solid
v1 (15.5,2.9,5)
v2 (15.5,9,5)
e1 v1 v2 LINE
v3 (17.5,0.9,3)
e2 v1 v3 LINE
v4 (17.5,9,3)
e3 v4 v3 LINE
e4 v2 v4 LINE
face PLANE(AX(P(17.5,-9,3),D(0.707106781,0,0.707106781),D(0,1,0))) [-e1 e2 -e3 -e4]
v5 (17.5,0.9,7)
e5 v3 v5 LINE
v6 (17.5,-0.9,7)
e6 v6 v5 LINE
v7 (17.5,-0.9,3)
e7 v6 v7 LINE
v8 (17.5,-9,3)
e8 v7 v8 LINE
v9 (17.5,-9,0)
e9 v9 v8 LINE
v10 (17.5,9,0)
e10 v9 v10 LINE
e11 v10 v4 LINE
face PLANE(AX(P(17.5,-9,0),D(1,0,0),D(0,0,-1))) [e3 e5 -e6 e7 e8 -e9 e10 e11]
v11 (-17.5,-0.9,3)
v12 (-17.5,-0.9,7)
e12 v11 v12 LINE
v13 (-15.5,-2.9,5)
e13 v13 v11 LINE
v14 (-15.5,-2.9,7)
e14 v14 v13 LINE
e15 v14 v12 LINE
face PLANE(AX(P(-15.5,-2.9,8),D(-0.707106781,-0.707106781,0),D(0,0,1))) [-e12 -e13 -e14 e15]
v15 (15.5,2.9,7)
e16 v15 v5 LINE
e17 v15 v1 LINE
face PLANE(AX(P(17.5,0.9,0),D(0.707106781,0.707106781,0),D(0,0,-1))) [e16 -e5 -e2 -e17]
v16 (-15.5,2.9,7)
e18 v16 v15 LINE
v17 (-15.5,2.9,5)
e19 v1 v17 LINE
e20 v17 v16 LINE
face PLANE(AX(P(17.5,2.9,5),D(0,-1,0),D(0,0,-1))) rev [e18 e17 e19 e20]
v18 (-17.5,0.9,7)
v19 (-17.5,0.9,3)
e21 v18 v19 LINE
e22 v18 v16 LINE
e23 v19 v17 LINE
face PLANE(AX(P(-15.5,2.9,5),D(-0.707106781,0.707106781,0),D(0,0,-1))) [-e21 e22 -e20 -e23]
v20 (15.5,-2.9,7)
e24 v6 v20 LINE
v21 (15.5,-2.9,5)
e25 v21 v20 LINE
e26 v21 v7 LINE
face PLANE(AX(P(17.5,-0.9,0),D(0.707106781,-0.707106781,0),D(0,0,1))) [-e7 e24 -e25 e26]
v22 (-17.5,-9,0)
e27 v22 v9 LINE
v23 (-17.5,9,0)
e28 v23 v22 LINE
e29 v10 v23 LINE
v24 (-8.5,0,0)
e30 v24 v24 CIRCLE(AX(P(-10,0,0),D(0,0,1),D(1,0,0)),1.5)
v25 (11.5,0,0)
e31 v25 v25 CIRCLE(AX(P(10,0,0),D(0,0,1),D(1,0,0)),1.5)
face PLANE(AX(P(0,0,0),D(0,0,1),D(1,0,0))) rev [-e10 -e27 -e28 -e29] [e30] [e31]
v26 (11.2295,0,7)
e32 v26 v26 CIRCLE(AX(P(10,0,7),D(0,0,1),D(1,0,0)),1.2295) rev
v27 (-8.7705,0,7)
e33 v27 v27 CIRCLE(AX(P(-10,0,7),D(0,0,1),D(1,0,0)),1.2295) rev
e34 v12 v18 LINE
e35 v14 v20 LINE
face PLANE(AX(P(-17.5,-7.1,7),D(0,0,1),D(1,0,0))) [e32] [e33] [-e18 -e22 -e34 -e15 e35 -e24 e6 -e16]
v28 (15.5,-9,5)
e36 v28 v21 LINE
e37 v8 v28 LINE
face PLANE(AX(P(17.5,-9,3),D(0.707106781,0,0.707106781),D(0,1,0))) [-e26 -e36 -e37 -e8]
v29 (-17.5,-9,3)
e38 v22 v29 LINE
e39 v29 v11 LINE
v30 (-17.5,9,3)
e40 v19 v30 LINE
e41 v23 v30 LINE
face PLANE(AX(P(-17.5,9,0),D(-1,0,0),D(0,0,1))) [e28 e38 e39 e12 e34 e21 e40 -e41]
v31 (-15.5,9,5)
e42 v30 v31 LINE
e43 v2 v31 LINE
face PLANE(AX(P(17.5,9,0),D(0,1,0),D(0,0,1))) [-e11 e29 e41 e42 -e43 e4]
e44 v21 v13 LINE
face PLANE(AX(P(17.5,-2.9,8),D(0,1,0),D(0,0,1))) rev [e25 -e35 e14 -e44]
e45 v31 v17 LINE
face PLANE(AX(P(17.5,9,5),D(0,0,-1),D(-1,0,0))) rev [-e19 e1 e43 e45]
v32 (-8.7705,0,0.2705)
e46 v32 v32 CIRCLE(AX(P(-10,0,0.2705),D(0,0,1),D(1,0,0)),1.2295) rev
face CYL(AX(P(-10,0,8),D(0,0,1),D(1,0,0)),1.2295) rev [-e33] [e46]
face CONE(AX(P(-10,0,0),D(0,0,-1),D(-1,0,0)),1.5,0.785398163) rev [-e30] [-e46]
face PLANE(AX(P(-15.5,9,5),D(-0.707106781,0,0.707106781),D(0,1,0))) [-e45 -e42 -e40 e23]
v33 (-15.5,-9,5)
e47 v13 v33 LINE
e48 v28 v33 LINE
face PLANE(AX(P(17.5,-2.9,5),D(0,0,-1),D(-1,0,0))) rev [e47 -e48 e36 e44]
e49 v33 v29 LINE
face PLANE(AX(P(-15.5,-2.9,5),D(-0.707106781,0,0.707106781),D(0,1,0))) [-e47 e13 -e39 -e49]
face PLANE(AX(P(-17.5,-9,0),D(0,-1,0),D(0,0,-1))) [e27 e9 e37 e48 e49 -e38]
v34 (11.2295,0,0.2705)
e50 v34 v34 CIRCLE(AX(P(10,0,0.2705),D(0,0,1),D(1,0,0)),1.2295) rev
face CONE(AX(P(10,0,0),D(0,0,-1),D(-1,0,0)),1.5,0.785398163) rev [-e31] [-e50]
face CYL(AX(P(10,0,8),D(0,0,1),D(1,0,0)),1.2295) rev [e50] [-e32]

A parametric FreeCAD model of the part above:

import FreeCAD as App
import Part
import Sketcher

V = App.Vector


def edges_at(feature, points):
    """Names of the edges that pass closest to the given points."""
    edges = feature.Shape.Edges
    near = lambda p: min(range(len(edges)), key=lambda i: edges[i].distToShape(Part.Vertex(*p))[0])
    return sorted({f"Edge{near(p) + 1}" for p in points})

doc = App.newDocument("Part")
params = doc.addObject("Spreadsheet::Sheet", "Params")
for row, (alias, value) in enumerate([
    ("sketch1_width", "35 mm"),
    ("sketch1_height", "18 mm"),
    ("pad1_length", "8 mm"),
    ("sketch2_height", "3 mm"),
    ("sketch2_width", "6.1 mm"),
    ("sketch3_height", "3 mm"),
    ("sketch3_width", "6.1 mm"),
    ("hole_diameter", "2.459 mm"),
    ("hole_depth", "8 mm"),
    ("chamfer_size", "0.2705 mm"),
    ("chamfer2_size", "2 mm"),
    ("sketch5_width", "35 mm"),
    ("sketch5_height", "1 mm"),
    ("pocket3_length", "10 mm"),
], start=1):
    params.set(f"A{row}", alias)
    params.set(f"B{row}", "=" + value)
    params.setAlias(f"B{row}", alias)

body = doc.addObject("PartDesign::Body", "Body")

# Sketch on XY plane
sketch1 = doc.addObject("Sketcher::SketchObject", "Sketch")
body.addObject(sketch1)
sketch1.AttachmentSupport = (doc.XY_Plane, [""])
sketch1.MapMode = "FlatFace"
sketch1.AttachmentOffset = App.Placement(V(0, 0, 8), App.Rotation())
sketch1.addGeometry([
    Part.LineSegment(V(-17.5, 9, 0), V(-17.5, -9, 0)),
    Part.LineSegment(V(-17.5, -9, 0), V(17.5, -9, 0)),
    Part.LineSegment(V(17.5, -9, 0), V(17.5, 9, 0)),
    Part.LineSegment(V(17.5, 9, 0), V(-17.5, 9, 0)),
], False)
sketch1.addConstraint([
    Sketcher.Constraint("Coincident", 0, 2, 1, 1),
    Sketcher.Constraint("Coincident", 1, 2, 2, 1),
    Sketcher.Constraint("Coincident", 2, 2, 3, 1),
    Sketcher.Constraint("Coincident", 3, 2, 0, 1),
    Sketcher.Constraint("Vertical", 0),
    Sketcher.Constraint("Horizontal", 1),
    Sketcher.Constraint("Vertical", 2),
    Sketcher.Constraint("Horizontal", 3),
    Sketcher.Constraint("Symmetric", 0, 2, 2, 2, -1, 1),
    Sketcher.Constraint("DistanceX", 1, 1, 1, 2, 35.0),
    Sketcher.Constraint("DistanceY", 0, 2, 0, 1, 18.0),
])
sketch1.setExpression("Constraints[9]", "Params.sketch1_width")
sketch1.setExpression("Constraints[10]", "Params.sketch1_height")
pad1 = doc.addObject("PartDesign::Pad", "Pad")
body.addObject(pad1)
pad1.Profile = sketch1
pad1.setExpression("Length", "Params.pad1_length")
pad1.Reversed = True

# Sketch on YZ plane
sketch2 = doc.addObject("Sketcher::SketchObject", "Sketch001")
body.addObject(sketch2)
sketch2.AttachmentSupport = (doc.YZ_Plane, [""])
sketch2.MapMode = "FlatFace"
sketch2.AttachmentOffset = App.Placement(V(0, 0, -17.5), App.Rotation())
sketch2.addGeometry([
    Part.LineSegment(V(9, 5, 0), V(2.9, 5, 0)),
    Part.LineSegment(V(2.9, 5, 0), V(2.9, 8, 0)),
    Part.LineSegment(V(2.9, 8, 0), V(9, 8, 0)),
    Part.LineSegment(V(9, 8, 0), V(9, 5, 0)),
], False)
sketch2.addConstraint([
    Sketcher.Constraint("Coincident", 0, 2, 1, 1),
    Sketcher.Constraint("Coincident", 1, 2, 2, 1),
    Sketcher.Constraint("Coincident", 2, 2, 3, 1),
    Sketcher.Constraint("Coincident", 3, 2, 0, 1),
    Sketcher.Constraint("Horizontal", 0),
    Sketcher.Constraint("Vertical", 1),
    Sketcher.Constraint("Horizontal", 2),
    Sketcher.Constraint("Vertical", 3),
    Sketcher.Constraint("DistanceY", 1, 1, 1, 2, 3.0),
    Sketcher.Constraint("DistanceX", 0, 2, 0, 1, 6.1),
    Sketcher.Constraint("DistanceY", -1, 1, 0, 2, 5.0),
    Sketcher.Constraint("DistanceX", -1, 1, 2, 2, 9.0),
])
sketch2.setExpression("Constraints[8]", "Params.sketch2_height")
sketch2.setExpression("Constraints[9]", "Params.sketch2_width")
pocket1 = doc.addObject("PartDesign::Pocket", "Pocket")
body.addObject(pocket1)
pocket1.Profile = sketch2
pocket1.Type = "ThroughAll"
pocket1.Reversed = True

# Sketch on YZ plane
sketch3 = doc.addObject("Sketcher::SketchObject", "Sketch002")
body.addObject(sketch3)
sketch3.AttachmentSupport = (doc.YZ_Plane, [""])
sketch3.MapMode = "FlatFace"
sketch3.AttachmentOffset = App.Placement(V(0, 0, -17.5), App.Rotation())
sketch3.addGeometry([
    Part.LineSegment(V(-2.9, 5, 0), V(-9, 5, 0)),
    Part.LineSegment(V(-9, 5, 0), V(-9, 8, 0)),
    Part.LineSegment(V(-9, 8, 0), V(-2.9, 8, 0)),
    Part.LineSegment(V(-2.9, 8, 0), V(-2.9, 5, 0)),
], False)
sketch3.addConstraint([
    Sketcher.Constraint("Coincident", 0, 2, 1, 1),
    Sketcher.Constraint("Coincident", 1, 2, 2, 1),
    Sketcher.Constraint("Coincident", 2, 2, 3, 1),
    Sketcher.Constraint("Coincident", 3, 2, 0, 1),
    Sketcher.Constraint("Horizontal", 0),
    Sketcher.Constraint("Vertical", 1),
    Sketcher.Constraint("Horizontal", 2),
    Sketcher.Constraint("Vertical", 3),
    Sketcher.Constraint("DistanceY", 1, 1, 1, 2, 3.0),
    Sketcher.Constraint("DistanceX", 0, 2, 0, 1, 6.1),
    Sketcher.Constraint("DistanceX", 0, 2, -1, 1, 9.0),
    Sketcher.Constraint("DistanceY", -1, 1, 0, 2, 5.0),
])
sketch3.setExpression("Constraints[8]", "Params.sketch3_height")
sketch3.setExpression("Constraints[9]", "Params.sketch3_width")
pocket2 = doc.addObject("PartDesign::Pocket", "Pocket001")
body.addObject(pocket2)
pocket2.Profile = sketch3
pocket2.Type = "ThroughAll"
pocket2.Reversed = True

# Sketch on XY plane
sketch4 = doc.addObject("Sketcher::SketchObject", "Sketch003")
body.addObject(sketch4)
sketch4.AttachmentSupport = (doc.XY_Plane, [""])
sketch4.MapMode = "FlatFace"
sketch4.AttachmentOffset = App.Placement(V(0, 0, 8), App.Rotation())
sketch4.addGeometry([
    Part.Circle(V(-10, 0, 0), V(0, 0, 1), 1.2295),
    Part.Circle(V(10, 0, 0), V(0, 0, 1), 1.2295),
], False)
sketch4.addConstraint([
    Sketcher.Constraint("Equal", 0, 1),
    Sketcher.Constraint("Symmetric", 0, 3, 1, 3, -1, 1),
    Sketcher.Constraint("PointOnObject", 0, 3, -1),
    Sketcher.Constraint("Diameter", 0, 2.459),
    Sketcher.Constraint("DistanceX", 0, 3, -1, 1, 10.0),
])
doc.recompute()
hole = doc.addObject("PartDesign::Hole", "Hole")
body.addObject(hole)
hole.Profile = sketch4
hole.ThreadType = "None"
hole.setExpression("Diameter", "Params.hole_diameter")
hole.DepthType = "Dimension"
hole.setExpression("Depth", "Params.hole_depth")
hole.DrillPoint = "Flat"
doc.recompute()

chamfer = doc.addObject("PartDesign::Chamfer", "Chamfer")
body.addObject(chamfer)
chamfer.Base = (hole, edges_at(hole, [
    (11.229, 0, 8),
    (11.229, 0, 0),
    (-8.771, 0, 8),
    (-8.771, 0, 0),
]))
chamfer.setExpression("Size", "Params.chamfer_size")
doc.recompute()

chamfer2 = doc.addObject("PartDesign::Chamfer", "Chamfer001")
body.addObject(chamfer2)
chamfer2.Base = (chamfer, edges_at(chamfer, [
    (17.5, 5.95, 5),
    (17.5, 2.9, 6.5),
    (-17.5, 5.95, 5),
    (-17.5, 2.9, 6.5),
    (17.5, -5.95, 5),
    (17.5, -2.9, 6.5),
    (-17.5, -2.9, 6.5),
    (-17.5, -5.95, 5),
]))
chamfer2.setExpression("Size", "Params.chamfer2_size")

# Sketch on XZ plane
sketch5 = doc.addObject("Sketcher::SketchObject", "Sketch004")
body.addObject(sketch5)
sketch5.AttachmentSupport = (doc.XZ_Plane, [""])
sketch5.MapMode = "FlatFace"
sketch5.AttachmentOffset = App.Placement(V(0, 0, -2.9), App.Rotation())
sketch5.addGeometry([
    Part.LineSegment(V(-17.5, 7, 0), V(-17.5, 8, 0)),
    Part.LineSegment(V(-17.5, 8, 0), V(17.5, 8, 0)),
    Part.LineSegment(V(17.5, 8, 0), V(17.5, 7, 0)),
    Part.LineSegment(V(17.5, 7, 0), V(-17.5, 7, 0)),
], False)
sketch5.addConstraint([
    Sketcher.Constraint("Coincident", 0, 2, 1, 1),
    Sketcher.Constraint("Coincident", 1, 2, 2, 1),
    Sketcher.Constraint("Coincident", 2, 2, 3, 1),
    Sketcher.Constraint("Coincident", 3, 2, 0, 1),
    Sketcher.Constraint("Vertical", 0),
    Sketcher.Constraint("Horizontal", 1),
    Sketcher.Constraint("Vertical", 2),
    Sketcher.Constraint("Horizontal", 3),
    Sketcher.Constraint("DistanceX", 1, 1, 1, 2, 35.0),
    Sketcher.Constraint("DistanceY", 0, 1, 0, 2, 1.0),
    Sketcher.Constraint("DistanceY", -1, 1, 0, 2, 8.0),
    Sketcher.Constraint("DistanceX", 0, 2, -1, 1, 17.5),
])
sketch5.setExpression("Constraints[8]", "Params.sketch5_width")
sketch5.setExpression("Constraints[9]", "Params.sketch5_height")
pocket3 = doc.addObject("PartDesign::Pocket", "Pocket002")
body.addObject(pocket3)
pocket3.Profile = sketch5
pocket3.setExpression("Length", "Params.pocket3_length")
pocket3.Reversed = True

doc.recompute()
